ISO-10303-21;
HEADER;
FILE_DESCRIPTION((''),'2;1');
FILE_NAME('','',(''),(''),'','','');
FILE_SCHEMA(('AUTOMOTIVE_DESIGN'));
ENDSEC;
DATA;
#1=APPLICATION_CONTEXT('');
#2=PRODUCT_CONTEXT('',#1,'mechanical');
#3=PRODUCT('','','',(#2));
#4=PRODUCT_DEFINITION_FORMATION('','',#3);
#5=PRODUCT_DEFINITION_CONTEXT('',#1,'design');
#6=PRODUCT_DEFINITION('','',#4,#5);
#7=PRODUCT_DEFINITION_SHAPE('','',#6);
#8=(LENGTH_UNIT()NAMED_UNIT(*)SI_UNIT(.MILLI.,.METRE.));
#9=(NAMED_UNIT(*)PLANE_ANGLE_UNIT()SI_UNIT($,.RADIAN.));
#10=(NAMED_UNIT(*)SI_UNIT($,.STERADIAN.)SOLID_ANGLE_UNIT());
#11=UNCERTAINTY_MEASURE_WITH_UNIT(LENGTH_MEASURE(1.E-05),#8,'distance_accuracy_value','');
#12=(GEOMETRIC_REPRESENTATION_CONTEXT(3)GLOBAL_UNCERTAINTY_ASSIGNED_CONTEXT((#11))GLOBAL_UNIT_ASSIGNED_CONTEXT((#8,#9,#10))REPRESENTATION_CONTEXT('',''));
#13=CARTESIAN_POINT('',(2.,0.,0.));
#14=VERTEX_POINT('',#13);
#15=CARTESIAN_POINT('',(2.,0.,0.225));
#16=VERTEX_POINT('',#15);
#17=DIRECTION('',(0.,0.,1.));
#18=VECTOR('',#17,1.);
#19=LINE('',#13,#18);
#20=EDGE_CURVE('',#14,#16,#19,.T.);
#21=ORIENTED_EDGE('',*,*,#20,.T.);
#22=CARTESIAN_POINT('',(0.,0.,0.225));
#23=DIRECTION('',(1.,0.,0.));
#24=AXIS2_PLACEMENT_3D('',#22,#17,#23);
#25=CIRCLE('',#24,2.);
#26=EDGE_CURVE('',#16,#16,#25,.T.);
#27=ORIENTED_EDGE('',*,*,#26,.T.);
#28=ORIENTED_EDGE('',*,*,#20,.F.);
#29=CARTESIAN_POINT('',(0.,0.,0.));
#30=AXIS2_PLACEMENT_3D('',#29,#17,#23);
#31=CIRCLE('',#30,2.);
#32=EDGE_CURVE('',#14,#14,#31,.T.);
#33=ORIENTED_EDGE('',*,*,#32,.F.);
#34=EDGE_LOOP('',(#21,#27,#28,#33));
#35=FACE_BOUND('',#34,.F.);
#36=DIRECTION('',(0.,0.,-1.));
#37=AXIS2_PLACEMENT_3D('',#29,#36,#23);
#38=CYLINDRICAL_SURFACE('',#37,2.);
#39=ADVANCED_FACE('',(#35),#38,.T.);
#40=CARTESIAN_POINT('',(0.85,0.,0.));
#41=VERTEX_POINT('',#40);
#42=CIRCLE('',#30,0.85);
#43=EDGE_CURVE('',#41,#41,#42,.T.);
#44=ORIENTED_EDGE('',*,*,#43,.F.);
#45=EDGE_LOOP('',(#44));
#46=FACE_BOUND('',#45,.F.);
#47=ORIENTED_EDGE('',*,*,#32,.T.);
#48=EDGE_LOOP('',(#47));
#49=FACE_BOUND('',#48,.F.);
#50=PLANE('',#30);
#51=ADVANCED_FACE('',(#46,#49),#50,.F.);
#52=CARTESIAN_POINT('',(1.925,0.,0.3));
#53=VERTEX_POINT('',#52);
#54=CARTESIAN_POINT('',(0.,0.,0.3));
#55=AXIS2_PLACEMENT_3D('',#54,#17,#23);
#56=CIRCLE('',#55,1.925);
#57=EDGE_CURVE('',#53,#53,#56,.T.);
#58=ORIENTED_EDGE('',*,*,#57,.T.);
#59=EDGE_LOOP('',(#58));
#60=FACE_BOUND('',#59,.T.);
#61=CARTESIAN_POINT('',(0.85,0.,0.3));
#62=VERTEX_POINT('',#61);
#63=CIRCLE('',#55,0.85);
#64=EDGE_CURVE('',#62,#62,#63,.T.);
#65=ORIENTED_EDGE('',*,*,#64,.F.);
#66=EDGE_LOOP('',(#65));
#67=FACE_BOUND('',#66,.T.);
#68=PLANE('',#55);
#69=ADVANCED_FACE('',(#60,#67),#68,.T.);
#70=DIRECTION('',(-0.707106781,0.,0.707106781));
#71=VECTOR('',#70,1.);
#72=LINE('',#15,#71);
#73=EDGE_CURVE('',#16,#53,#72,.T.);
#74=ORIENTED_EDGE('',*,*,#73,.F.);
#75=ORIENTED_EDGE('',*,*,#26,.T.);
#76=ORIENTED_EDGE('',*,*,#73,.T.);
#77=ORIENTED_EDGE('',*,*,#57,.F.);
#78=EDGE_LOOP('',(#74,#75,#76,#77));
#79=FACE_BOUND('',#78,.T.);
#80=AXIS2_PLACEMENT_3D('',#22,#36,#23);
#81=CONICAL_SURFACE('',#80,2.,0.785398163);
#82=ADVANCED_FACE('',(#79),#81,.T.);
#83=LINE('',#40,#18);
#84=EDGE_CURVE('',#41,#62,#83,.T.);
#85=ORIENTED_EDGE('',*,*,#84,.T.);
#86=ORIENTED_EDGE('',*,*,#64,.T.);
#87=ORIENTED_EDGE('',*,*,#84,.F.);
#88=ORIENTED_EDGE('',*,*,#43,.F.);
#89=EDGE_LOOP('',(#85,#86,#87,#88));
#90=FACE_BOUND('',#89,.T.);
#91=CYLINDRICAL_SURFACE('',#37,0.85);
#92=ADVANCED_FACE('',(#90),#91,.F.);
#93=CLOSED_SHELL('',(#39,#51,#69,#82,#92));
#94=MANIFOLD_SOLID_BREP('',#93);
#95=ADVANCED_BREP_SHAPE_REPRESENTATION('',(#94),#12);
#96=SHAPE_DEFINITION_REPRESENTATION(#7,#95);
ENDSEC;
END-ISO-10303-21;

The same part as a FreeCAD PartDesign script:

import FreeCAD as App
import Part
import Sketcher


def edges_at(feature, points):
    """Names of the edges that pass closest to the given points."""
    edges = feature.Shape.Edges
    near = lambda p: min(range(len(edges)), key=lambda i: edges[i].distToShape(Part.Vertex(*p))[0])
    return sorted({f"Edge{near(p) + 1}" for p in points})

doc = App.newDocument("Part")
body = doc.addObject("PartDesign::Body", "Body")

sketch1 = body.newObject("Sketcher::SketchObject", "Sketch")
sketch1.AttachmentSupport = (doc.getObject("XY_Plane"), [""])
sketch1.MapMode = "FlatFace"
sketch1.addGeometry([
    Part.Circle(App.Vector(0, 0, 0), App.Vector(0, 0, 1), 2),
    Part.Circle(App.Vector(0, 0, 0), App.Vector(0, 0, 1), 0.85),
], False)
sketch1.addConstraint([
    Sketcher.Constraint("Coincident", 0, 3, -1, 1),
    Sketcher.Constraint("Coincident", 1, 3, -1, 1),
    Sketcher.Constraint("Diameter", 0, 4.0),
    Sketcher.Constraint("Diameter", 1, 1.7),
])
pad1 = body.newObject("PartDesign::Pad", "Pad")
pad1.Profile = sketch1
pad1.Length = 0.3
doc.recompute()

chamfer = body.newObject("PartDesign::Chamfer", "Chamfer")
chamfer.Base = (pad1, edges_at(pad1, [(-2, 0, 0.3)]))
chamfer.Size = 0.075

doc.recompute()
